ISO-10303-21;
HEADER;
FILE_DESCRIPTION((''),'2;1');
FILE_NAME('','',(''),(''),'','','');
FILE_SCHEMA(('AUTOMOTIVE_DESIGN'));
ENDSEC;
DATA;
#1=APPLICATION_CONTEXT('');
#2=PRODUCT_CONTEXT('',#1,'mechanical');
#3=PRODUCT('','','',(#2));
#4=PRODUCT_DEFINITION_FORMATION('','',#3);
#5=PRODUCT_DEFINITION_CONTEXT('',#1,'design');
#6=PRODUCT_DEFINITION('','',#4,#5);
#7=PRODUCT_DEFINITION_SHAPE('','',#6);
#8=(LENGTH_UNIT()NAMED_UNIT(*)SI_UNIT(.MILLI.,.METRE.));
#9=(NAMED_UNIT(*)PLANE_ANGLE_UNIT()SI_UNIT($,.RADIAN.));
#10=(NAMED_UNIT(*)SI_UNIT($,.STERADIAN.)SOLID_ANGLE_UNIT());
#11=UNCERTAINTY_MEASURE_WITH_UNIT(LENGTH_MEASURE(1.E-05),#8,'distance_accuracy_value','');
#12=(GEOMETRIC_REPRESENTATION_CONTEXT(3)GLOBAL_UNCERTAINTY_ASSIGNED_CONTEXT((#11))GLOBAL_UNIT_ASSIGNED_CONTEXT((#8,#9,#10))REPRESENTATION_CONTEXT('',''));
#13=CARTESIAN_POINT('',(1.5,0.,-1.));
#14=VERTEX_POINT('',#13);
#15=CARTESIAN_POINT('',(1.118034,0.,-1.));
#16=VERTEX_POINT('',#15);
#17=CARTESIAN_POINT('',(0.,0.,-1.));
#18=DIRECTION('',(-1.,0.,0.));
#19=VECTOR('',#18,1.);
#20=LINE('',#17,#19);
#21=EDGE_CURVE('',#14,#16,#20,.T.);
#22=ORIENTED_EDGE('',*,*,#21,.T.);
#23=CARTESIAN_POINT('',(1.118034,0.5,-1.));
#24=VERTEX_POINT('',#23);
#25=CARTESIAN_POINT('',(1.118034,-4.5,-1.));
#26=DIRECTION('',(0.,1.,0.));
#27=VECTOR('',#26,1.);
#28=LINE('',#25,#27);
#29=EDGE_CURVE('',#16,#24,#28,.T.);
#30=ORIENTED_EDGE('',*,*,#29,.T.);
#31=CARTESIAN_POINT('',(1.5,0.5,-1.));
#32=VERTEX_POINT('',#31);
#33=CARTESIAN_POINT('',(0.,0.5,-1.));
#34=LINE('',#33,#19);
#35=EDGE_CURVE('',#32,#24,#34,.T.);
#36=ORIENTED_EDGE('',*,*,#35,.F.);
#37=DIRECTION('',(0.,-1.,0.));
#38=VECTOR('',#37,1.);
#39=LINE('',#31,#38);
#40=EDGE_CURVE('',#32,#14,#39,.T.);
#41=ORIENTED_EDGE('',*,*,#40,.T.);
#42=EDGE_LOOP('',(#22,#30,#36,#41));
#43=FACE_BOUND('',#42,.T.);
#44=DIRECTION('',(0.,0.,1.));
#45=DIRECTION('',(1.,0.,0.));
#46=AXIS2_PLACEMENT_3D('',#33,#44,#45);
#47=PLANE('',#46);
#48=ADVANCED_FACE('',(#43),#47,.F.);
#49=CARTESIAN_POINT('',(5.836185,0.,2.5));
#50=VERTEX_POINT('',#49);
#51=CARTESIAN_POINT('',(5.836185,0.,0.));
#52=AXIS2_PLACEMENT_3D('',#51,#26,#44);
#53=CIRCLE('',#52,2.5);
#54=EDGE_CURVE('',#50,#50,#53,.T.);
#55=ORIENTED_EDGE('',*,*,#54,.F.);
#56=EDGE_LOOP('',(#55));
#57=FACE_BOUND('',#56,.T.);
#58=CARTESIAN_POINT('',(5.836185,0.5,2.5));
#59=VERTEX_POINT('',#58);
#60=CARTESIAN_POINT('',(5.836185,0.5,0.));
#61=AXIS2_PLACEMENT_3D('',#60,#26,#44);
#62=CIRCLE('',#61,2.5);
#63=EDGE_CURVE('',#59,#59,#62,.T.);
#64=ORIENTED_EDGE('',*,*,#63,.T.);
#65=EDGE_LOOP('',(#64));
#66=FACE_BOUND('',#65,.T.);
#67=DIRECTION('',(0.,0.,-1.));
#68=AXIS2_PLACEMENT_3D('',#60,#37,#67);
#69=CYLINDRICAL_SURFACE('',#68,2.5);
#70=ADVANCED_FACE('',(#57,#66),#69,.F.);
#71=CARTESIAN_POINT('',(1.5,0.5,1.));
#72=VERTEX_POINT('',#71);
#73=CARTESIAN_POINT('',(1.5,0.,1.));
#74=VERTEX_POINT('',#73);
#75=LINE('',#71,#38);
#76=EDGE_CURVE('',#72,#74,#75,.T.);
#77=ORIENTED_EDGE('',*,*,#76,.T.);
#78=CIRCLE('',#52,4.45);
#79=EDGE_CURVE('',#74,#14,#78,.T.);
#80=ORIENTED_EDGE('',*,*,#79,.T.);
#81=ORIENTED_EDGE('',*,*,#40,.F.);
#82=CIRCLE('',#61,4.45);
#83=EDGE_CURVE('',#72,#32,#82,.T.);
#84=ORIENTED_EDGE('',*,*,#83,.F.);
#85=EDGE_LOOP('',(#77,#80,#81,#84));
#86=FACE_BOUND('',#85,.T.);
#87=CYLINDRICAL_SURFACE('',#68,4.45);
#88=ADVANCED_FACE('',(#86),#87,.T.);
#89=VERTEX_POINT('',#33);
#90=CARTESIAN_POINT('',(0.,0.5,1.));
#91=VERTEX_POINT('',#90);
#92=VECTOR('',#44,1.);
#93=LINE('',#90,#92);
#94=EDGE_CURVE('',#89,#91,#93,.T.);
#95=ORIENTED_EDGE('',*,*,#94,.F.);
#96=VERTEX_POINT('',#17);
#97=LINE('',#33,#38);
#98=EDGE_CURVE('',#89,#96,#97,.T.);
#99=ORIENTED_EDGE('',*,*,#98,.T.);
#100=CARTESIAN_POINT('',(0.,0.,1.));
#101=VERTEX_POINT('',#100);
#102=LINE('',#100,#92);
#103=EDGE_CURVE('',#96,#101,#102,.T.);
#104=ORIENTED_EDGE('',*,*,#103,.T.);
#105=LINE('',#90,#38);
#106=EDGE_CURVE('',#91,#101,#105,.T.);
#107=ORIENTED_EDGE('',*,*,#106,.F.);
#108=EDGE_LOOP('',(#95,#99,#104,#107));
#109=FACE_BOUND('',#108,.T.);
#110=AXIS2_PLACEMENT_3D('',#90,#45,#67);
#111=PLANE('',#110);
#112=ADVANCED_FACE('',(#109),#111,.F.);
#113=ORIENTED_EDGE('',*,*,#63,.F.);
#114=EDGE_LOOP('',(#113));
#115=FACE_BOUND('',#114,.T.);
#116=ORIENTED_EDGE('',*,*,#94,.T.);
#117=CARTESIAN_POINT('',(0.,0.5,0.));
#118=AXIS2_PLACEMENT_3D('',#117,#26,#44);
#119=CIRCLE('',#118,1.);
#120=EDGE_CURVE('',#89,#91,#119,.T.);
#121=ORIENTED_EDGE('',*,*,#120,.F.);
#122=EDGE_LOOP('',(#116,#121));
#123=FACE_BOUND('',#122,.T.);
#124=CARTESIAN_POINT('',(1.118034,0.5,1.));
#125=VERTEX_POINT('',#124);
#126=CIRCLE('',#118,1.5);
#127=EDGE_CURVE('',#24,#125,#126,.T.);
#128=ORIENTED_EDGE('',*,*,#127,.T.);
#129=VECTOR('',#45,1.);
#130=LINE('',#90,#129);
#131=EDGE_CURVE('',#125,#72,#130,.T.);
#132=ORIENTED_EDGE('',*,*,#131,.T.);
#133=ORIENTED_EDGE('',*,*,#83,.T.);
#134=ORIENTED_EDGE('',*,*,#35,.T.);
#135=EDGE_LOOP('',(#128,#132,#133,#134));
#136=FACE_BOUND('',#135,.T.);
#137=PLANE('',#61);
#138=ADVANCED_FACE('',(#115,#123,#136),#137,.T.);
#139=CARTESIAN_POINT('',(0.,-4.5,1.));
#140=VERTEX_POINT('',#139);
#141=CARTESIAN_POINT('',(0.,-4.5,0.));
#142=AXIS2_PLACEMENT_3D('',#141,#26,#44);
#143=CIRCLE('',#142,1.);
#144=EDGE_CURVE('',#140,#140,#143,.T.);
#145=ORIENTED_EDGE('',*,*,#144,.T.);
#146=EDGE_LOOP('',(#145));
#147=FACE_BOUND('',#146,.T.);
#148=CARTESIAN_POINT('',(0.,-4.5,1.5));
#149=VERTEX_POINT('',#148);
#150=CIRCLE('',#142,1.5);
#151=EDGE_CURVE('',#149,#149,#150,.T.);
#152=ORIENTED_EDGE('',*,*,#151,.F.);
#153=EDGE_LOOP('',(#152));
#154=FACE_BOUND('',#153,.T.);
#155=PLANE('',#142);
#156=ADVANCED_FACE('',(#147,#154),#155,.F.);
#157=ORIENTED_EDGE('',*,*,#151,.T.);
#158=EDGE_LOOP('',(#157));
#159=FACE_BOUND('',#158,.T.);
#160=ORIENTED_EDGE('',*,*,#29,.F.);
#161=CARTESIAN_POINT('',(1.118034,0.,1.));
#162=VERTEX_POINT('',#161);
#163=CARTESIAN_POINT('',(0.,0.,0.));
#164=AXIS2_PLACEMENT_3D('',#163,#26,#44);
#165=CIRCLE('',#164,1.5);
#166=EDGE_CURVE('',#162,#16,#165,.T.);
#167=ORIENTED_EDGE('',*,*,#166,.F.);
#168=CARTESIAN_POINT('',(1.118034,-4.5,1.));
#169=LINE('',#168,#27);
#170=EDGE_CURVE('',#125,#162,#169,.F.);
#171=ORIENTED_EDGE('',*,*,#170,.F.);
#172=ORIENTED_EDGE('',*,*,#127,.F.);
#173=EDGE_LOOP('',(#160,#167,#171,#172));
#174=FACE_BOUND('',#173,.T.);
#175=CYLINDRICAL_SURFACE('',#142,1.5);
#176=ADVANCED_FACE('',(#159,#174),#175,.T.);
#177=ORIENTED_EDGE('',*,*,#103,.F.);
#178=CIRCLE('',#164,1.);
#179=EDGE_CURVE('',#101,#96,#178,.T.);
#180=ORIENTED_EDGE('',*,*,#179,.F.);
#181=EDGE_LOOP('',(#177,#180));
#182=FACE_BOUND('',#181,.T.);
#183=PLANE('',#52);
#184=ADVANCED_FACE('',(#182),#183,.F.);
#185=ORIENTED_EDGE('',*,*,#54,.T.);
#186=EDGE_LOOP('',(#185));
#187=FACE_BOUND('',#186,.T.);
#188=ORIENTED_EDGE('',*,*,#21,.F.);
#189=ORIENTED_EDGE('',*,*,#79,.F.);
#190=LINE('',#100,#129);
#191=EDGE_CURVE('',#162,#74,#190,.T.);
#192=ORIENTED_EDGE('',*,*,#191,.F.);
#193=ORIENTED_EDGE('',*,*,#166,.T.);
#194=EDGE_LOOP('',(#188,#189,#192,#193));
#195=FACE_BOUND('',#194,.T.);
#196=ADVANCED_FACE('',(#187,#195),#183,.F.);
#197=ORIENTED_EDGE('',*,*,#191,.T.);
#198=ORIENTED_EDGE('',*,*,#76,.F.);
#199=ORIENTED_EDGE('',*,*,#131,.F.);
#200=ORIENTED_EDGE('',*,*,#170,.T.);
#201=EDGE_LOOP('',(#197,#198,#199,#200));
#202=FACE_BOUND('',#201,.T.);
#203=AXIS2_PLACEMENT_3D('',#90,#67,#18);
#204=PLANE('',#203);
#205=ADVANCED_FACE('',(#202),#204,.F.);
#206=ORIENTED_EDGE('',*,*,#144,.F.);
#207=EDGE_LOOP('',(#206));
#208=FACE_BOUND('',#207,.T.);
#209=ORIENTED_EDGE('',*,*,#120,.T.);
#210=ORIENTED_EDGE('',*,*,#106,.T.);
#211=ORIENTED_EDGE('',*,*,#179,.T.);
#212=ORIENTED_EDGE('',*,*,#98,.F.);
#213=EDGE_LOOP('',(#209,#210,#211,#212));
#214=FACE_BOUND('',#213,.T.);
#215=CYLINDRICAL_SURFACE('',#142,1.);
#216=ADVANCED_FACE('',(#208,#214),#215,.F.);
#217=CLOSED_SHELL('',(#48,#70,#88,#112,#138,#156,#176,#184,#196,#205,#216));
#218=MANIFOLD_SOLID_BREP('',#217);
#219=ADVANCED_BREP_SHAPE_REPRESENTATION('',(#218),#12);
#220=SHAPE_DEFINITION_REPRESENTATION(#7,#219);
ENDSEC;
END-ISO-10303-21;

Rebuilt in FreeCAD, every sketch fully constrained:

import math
import FreeCAD as App
import Part
import Sketcher

doc = App.newDocument("Part")
body = doc.addObject("PartDesign::Body", "Body")

sketch1 = body.newObject("Sketcher::SketchObject", "Sketch")
sketch1.AttachmentSupport = (doc.getObject("XZ_Plane"), [""])
sketch1.MapMode = "FlatFace"
sketch1.addGeometry([
    Part.LineSegment(App.Vector(0, -1, 0), App.Vector(0, 1, 0)),
    Part.LineSegment(App.Vector(0, 1, 0), App.Vector(1.5, 1, 0)),
    Part.ArcOfCircle(Part.Circle(App.Vector(5.8, 0, 0), App.Vector(0, 0, 1), 4.5), math.radians(-167), math.radians(167)),
    Part.LineSegment(App.Vector(1.5, -1, 0), App.Vector(0, -1, 0)),
    Part.Circle(App.Vector(5.8, 0, 0), App.Vector(0, 0, 1), 2.5),
], False)
sketch1.addConstraint([
    Sketcher.Constraint("Coincident", 0, 2, 1, 1),
    Sketcher.Constraint("Coincident", 1, 2, 2, 2),
    Sketcher.Constraint("Coincident", 2, 1, 3, 1),
    Sketcher.Constraint("Coincident", 3, 2, 0, 1),
    Sketcher.Constraint("Vertical", 0),
    Sketcher.Constraint("Horizontal", 1),
    Sketcher.Constraint("Horizontal", 3),
    Sketcher.Constraint("Coincident", 4, 3, 2, 3),
    Sketcher.Constraint("Symmetric", 0, 2, 3, 2, -1, 1),
    Sketcher.Constraint("PointOnObject", 2, 3, -1),
    Sketcher.Constraint("Diameter", 4, 5.0),
    Sketcher.Constraint("DistanceY", 0, 1, 0, 2, 2.0),
    Sketcher.Constraint("Radius", 2, 4.45),
    Sketcher.Constraint("DistanceX", 1, 1, 1, 2, 1.5),
])
pad1 = body.newObject("PartDesign::Pad", "Pad")
pad1.Profile = sketch1
pad1.Length = 0.5
pad1.Reversed = True

sketch2 = body.newObject("Sketcher::SketchObject", "Sketch001")
sketch2.AttachmentSupport = (doc.getObject("XZ_Plane"), [""])
sketch2.MapMode = "FlatFace"
sketch2.AttachmentOffset = App.Placement(App.Vector(0, 0, -0.5), App.Rotation())
sketch2.addGeometry([
    Part.Circle(App.Vector(0, 0, 0), App.Vector(0, 0, 1), 1.5),
    Part.Circle(App.Vector(0, 0, 0), App.Vector(0, 0, 1), 1),
], False)
sketch2.addConstraint([
    Sketcher.Constraint("Coincident", 0, 3, -1, 1),
    Sketcher.Constraint("Coincident", 1, 3, -1, 1),
    Sketcher.Constraint("Diameter", 0, 3.0),
    Sketcher.Constraint("Diameter", 1, 2.0),
])
pad2 = body.newObject("PartDesign::Pad", "Pad001")
pad2.Profile = sketch2
pad2.Length = 5

doc.recompute()
